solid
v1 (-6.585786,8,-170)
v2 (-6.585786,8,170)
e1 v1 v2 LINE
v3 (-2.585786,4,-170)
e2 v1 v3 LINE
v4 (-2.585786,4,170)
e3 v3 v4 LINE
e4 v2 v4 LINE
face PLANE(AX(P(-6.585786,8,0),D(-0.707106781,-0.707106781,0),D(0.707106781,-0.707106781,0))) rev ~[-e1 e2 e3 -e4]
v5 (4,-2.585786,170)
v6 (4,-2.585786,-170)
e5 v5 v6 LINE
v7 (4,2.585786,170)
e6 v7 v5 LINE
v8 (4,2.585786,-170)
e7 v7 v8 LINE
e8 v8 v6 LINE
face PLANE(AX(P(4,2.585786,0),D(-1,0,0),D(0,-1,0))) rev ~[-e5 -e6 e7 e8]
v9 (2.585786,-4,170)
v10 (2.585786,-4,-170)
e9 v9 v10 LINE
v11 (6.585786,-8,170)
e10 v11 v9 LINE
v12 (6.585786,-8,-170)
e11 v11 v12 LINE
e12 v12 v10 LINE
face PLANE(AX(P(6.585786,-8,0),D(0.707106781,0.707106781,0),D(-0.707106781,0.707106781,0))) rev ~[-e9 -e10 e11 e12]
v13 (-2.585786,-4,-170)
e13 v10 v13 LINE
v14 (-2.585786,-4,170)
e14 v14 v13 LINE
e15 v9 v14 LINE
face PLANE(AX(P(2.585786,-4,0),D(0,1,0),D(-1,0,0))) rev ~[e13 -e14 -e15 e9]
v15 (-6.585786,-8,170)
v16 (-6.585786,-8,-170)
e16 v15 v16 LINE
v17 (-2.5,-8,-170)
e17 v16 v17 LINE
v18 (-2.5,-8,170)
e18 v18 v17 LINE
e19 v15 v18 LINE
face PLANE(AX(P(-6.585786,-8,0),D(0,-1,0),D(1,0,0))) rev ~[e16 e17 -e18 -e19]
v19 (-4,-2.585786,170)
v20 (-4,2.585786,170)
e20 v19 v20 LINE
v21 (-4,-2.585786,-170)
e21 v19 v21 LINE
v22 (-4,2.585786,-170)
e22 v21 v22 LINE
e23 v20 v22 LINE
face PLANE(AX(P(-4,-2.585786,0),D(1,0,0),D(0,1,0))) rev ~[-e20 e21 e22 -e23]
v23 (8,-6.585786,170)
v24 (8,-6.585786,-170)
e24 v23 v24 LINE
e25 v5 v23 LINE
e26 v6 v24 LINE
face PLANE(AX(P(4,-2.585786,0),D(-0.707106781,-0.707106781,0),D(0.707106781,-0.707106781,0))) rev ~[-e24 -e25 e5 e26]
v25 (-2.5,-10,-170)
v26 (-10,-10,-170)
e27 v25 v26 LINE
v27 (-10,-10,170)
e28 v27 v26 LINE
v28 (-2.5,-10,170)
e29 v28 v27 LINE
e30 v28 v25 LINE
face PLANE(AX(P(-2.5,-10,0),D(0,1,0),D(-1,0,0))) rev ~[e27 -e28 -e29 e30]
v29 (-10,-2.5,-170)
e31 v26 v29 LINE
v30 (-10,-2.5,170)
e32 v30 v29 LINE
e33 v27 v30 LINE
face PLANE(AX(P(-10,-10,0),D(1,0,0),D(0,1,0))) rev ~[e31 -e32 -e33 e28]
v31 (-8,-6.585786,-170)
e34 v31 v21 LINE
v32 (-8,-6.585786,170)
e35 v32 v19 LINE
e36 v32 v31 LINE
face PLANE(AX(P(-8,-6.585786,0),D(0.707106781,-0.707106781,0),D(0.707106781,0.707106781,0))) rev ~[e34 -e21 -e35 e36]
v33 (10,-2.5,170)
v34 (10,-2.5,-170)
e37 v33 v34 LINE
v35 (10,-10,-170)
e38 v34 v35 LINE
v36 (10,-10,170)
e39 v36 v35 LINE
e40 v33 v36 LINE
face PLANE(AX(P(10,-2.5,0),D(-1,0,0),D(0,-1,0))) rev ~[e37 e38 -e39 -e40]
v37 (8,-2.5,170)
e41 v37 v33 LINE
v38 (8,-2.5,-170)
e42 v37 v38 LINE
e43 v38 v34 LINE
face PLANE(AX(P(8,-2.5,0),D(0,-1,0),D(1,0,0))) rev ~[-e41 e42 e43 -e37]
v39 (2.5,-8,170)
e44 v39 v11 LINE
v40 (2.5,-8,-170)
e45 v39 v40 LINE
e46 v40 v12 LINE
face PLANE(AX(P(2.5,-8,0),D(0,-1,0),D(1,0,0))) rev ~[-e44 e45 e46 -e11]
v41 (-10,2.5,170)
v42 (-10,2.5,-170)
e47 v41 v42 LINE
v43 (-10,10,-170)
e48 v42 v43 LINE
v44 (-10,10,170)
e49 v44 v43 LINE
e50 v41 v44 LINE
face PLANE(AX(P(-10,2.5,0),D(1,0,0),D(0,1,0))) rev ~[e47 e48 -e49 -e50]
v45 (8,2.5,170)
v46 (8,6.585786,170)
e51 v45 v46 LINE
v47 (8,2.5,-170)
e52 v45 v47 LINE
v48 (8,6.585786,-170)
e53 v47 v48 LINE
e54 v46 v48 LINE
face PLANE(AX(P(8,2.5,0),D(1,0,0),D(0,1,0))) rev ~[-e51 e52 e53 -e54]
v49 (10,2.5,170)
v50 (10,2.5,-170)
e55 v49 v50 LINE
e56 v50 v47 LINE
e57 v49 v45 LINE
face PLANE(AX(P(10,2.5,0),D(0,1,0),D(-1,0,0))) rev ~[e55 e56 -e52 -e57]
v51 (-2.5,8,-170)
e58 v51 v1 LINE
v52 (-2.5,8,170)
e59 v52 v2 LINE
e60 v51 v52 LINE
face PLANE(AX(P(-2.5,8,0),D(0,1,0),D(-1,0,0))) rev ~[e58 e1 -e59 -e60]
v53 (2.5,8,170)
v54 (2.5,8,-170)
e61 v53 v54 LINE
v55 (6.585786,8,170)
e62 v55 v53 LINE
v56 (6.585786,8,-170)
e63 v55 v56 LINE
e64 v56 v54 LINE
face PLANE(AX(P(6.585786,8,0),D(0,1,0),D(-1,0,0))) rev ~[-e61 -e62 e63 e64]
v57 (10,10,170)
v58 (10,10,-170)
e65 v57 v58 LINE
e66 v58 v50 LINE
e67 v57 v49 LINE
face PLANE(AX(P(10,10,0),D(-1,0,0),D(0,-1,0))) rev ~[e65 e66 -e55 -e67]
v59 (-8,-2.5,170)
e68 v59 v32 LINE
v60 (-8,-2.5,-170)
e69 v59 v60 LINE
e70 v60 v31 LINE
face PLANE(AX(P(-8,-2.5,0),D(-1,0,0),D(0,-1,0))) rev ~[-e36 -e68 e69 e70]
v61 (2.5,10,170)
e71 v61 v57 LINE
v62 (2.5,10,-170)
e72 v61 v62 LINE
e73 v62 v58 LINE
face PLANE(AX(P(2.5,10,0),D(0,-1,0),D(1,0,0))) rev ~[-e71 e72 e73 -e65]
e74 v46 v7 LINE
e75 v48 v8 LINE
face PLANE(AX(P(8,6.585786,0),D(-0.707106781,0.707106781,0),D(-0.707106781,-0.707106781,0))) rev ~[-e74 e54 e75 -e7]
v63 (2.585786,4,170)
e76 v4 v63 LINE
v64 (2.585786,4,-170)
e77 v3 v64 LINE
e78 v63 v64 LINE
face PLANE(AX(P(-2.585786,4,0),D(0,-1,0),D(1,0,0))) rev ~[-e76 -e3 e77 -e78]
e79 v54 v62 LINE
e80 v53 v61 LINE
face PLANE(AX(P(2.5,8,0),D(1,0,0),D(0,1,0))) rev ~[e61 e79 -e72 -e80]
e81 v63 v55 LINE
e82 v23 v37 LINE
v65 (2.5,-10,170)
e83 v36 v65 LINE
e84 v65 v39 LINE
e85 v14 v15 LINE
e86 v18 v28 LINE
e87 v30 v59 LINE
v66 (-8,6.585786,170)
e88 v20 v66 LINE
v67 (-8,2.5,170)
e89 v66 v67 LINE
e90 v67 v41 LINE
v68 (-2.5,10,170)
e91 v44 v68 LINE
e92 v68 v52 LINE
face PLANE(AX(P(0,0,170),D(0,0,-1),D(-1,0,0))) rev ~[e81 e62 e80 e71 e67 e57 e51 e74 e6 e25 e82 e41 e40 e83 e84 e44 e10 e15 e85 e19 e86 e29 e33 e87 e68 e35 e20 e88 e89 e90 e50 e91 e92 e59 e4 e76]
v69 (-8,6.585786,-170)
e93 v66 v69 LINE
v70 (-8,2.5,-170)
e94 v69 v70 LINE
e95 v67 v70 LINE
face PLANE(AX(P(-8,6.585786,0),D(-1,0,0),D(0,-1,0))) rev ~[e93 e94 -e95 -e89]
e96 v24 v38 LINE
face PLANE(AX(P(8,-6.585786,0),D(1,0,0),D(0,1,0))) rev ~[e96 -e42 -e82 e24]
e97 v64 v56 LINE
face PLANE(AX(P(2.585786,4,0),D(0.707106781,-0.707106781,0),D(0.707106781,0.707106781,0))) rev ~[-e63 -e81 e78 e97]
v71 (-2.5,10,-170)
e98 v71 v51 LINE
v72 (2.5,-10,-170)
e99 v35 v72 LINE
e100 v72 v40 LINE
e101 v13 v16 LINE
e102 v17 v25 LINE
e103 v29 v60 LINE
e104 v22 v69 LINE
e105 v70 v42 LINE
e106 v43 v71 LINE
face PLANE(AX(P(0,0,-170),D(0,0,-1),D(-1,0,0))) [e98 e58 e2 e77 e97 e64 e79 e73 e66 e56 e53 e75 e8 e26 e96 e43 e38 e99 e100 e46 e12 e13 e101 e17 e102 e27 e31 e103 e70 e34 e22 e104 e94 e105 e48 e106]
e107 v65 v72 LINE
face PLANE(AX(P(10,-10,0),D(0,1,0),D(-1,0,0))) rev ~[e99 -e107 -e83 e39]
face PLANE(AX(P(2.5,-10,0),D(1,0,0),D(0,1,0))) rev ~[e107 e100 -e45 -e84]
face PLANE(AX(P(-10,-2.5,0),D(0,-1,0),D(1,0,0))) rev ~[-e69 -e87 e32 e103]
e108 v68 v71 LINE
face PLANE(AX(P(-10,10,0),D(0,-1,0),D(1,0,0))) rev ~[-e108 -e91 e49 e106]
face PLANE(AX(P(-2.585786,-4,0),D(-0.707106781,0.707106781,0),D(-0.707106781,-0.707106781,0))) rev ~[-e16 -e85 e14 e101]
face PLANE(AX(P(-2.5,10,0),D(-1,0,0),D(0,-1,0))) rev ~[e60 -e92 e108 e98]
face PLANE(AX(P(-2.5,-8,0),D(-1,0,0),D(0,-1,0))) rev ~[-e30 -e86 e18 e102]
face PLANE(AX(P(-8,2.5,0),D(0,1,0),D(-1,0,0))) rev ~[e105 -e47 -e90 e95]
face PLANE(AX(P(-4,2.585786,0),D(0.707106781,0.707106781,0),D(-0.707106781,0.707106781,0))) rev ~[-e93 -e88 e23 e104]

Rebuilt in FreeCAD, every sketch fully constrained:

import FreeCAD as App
import Part
import Sketcher

V = App.Vector
Q = App.Units.Quantity


def add_polygon(sketch, points):
    """Adds a closed chain of lines whose ends are joined by coincident constraints."""
    first, n = sketch.GeometryCount, len(points)
    for a, b in zip(points, points[1:] + points[:1]):
        sketch.addGeometry(Part.LineSegment(App.Vector(*a, 0), App.Vector(*b, 0)), False)
    for i in range(n):
        sketch.addConstraint(Sketcher.Constraint("Coincident", first + i, 2, first + (i + 1) % n, 1))

doc = App.newDocument("Part")
body = doc.addObject("PartDesign::Body", "Body")

sketch1 = body.newObject("Sketcher::SketchObject", "Sketch")
sketch1.AttachmentSupport = (doc.getObject("XY_Plane"), [""])
sketch1.MapMode = "FlatFace"
add_polygon(sketch1, [(2.6, 4), (-2.6, 4), (-6.6, 8), (-2.5, 8), (-2.5, 10), (-10, 10), (-10, 2.5), (-8, 2.5), (-8, 6.6), (-4, 2.6), (-4, -2.6), (-8, -6.6), (-8, -2.5), (-10, -2.5), (-10, -10), (-2.5, -10), (-2.5, -8), (-6.6, -8), (-2.6, -4), (2.6, -4), (6.6, -8), (2.5, -8), (2.5, -10), (10, -10), (10, -2.5), (8, -2.5), (8, -6.6), (4, -2.6), (4, 2.6), (8, 6.6), (8, 2.5), (10, 2.5), (10, 10), (2.5, 10), (2.5, 8), (6.6, 8)])
sketch1.addConstraint([
    Sketcher.Constraint("Horizontal", 0),
    Sketcher.Constraint("Horizontal", 2),
    Sketcher.Constraint("Vertical", 3),
    Sketcher.Constraint("Horizontal", 4),
    Sketcher.Constraint("Vertical", 5),
    Sketcher.Constraint("Horizontal", 6),
    Sketcher.Constraint("Vertical", 7),
    Sketcher.Constraint("Vertical", 9),
    Sketcher.Constraint("Vertical", 11),
    Sketcher.Constraint("Horizontal", 12),
    Sketcher.Constraint("Vertical", 13),
    Sketcher.Constraint("Horizontal", 14),
    Sketcher.Constraint("Vertical", 15),
    Sketcher.Constraint("Horizontal", 16),
    Sketcher.Constraint("Horizontal", 18),
    Sketcher.Constraint("Horizontal", 20),
    Sketcher.Constraint("Vertical", 21),
    Sketcher.Constraint("Horizontal", 22),
    Sketcher.Constraint("Vertical", 23),
    Sketcher.Constraint("Horizontal", 24),
    Sketcher.Constraint("Vertical", 25),
    Sketcher.Constraint("Vertical", 27),
    Sketcher.Constraint("Vertical", 29),
    Sketcher.Constraint("Horizontal", 30),
    Sketcher.Constraint("Vertical", 31),
    Sketcher.Constraint("Horizontal", 32),
    Sketcher.Constraint("Vertical", 33),
    Sketcher.Constraint("Horizontal", 34),
    Sketcher.Constraint("Symmetric", 0, 2, 18, 2, -1, 1),
    Sketcher.Constraint("Symmetric", 1, 2, 19, 2, -1, 1),
    Sketcher.Constraint("Symmetric", 3, 2, 21, 2, -1, 1),
    Sketcher.Constraint("Symmetric", 5, 2, 23, 2, -1, 1),
    Sketcher.Constraint("Symmetric", 7, 2, 25, 2, -1, 1),
    Sketcher.Constraint("Symmetric", 8, 2, 26, 2, -1, 1),
    Sketcher.Constraint("Symmetric", 10, 2, 28, 2, -1, 1),
    Sketcher.Constraint("Symmetric", 12, 2, 30, 2, -1, 1),
    Sketcher.Constraint("Symmetric", 14, 2, 32, 2, -1, 1),
    Sketcher.Constraint("Symmetric", 16, 2, 34, 2, -1, 1),
    Sketcher.Constraint("Symmetric", 16, 2, 19, 2, -2),
    Sketcher.Constraint("Symmetric", 14, 2, 21, 2, -2),
    Sketcher.Constraint("Symmetric", 12, 2, 23, 2, -2),
    Sketcher.Constraint("Symmetric", 10, 2, 25, 2, -2),
    Sketcher.Constraint("Parallel", 1, 8),
    Sketcher.Constraint("Perpendicular", 8, 10),
    Sketcher.Constraint("Parallel", 10, 17),
    Sketcher.Constraint("Perpendicular", 26, 28),
    Sketcher.Constraint("Parallel", 28, 35),
    Sketcher.Constraint("Horizontal", 9, 2, 26, 2),
    Sketcher.Constraint("Equal", 30, 3),
    Sketcher.Constraint("Equal", 32, 5),
    Sketcher.Constraint("Equal", 34, 7),
    Sketcher.Constraint("Equal", 18, 9),
    Sketcher.Constraint("Equal", 1, 8),
    Sketcher.Constraint("DistanceX", 6, 1, 6, 2, Q("2 mm")),
    Sketcher.Constraint("DistanceX", 4, 2, 4, 1, Q("7.5 mm")),
    Sketcher.Constraint("DistanceY", -1, 1, 0, 2, Q("4 mm")),
    Sketcher.Constraint("DistanceY", -1, 1, 1, 2, Q("8 mm")),
    Sketcher.Constraint("DistanceX", 0, 2, 0, 1, Q("5.171573 mm")),
])
pad1 = body.newObject("PartDesign::Pad", "Pad")
pad1.Profile = sketch1
pad1.Length = 340
pad1.Midplane = True

doc.recompute()
